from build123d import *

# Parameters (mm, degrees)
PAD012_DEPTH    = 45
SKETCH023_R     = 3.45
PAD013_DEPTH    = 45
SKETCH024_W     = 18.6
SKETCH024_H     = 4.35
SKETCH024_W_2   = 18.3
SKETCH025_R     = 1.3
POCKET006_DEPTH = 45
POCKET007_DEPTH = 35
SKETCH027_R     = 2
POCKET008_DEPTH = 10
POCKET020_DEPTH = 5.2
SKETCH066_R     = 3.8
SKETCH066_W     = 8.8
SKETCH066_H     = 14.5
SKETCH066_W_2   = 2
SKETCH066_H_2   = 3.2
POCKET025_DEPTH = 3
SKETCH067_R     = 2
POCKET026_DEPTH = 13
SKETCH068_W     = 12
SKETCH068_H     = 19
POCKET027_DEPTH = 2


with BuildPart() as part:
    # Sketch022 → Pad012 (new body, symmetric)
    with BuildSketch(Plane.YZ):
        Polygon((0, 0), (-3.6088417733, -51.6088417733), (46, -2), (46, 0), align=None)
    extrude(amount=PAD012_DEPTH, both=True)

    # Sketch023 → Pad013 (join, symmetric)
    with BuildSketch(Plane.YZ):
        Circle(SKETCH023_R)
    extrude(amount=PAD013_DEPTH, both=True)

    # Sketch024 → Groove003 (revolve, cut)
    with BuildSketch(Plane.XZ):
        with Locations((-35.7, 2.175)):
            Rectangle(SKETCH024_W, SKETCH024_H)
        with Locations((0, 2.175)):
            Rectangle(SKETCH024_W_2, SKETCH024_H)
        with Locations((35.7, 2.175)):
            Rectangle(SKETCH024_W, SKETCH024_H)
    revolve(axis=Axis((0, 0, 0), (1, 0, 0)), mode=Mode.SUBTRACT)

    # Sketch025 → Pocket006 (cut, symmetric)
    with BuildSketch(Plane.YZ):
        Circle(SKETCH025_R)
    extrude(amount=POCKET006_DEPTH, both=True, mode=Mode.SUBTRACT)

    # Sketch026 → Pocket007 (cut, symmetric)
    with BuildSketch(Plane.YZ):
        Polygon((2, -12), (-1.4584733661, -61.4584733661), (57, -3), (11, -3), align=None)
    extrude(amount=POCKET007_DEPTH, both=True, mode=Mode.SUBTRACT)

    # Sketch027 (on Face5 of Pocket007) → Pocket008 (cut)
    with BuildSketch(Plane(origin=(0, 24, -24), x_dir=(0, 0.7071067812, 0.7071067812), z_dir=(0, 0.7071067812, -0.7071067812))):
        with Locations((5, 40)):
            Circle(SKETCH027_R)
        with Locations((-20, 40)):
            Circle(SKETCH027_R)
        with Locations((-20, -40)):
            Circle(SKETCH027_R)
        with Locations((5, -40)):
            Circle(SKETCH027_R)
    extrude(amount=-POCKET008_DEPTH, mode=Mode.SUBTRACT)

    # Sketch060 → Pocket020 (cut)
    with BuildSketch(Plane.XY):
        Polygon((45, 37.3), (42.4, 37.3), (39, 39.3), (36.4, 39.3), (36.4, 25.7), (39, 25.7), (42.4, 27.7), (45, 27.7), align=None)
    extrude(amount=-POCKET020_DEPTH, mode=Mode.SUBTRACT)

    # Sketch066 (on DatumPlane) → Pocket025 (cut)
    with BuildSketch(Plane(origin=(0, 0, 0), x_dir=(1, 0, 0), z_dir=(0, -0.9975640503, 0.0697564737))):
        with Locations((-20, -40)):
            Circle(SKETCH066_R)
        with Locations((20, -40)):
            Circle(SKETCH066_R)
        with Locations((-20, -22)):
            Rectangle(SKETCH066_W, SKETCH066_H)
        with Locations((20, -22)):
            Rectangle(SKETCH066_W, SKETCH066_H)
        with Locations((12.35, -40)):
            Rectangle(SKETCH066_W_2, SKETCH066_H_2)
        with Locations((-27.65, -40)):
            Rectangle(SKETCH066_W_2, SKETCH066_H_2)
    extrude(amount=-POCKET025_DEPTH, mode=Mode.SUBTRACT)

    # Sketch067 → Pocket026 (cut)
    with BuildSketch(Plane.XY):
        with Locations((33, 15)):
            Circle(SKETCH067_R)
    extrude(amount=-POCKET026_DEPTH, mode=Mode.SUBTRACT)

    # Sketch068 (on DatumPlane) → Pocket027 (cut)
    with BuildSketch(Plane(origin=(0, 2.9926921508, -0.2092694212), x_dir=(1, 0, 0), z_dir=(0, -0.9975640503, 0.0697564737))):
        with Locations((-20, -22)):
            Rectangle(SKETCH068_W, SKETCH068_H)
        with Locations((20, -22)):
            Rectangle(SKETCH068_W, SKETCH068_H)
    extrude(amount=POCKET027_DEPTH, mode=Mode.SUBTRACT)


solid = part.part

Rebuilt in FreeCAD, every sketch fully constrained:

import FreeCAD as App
import Part
import Sketcher
from FreeCAD import Vector
Q = App.Units.Quantity

doc = App.newDocument("Part")
body = doc.addObject("PartDesign::Body", "Body")

# Sketch on YZ plane
sketch1 = body.newObject("Sketcher::SketchObject", "Sketch")
sketch1.AttachmentSupport = (doc.getObject("YZ_Plane"), [""])
sketch1.MapMode = "FlatFace"
sketch1.addGeometry([
    Part.LineSegment(Vector(0, 0, 0), Vector(-3.608842, -51.608842, 0)),
    Part.LineSegment(Vector(-3.608842, -51.608842, 0), Vector(46, -2, 0)),
    Part.LineSegment(Vector(46, -2, 0), Vector(46, 0, 0)),
    Part.LineSegment(Vector(46, 0, 0), Vector(0, 0, 0)),
], False)
sketch1.addConstraint([
    Sketcher.Constraint("Coincident", 0, 2, 1, 1),
    Sketcher.Constraint("Coincident", 1, 2, 2, 1),
    Sketcher.Constraint("Coincident", 2, 2, 3, 1),
    Sketcher.Constraint("Coincident", 3, 2, 0, 1),
    Sketcher.Constraint("Vertical", 2),
    Sketcher.Constraint("Horizontal", 3),
    Sketcher.Constraint("Coincident", 3, 2, -1, 1),
    Sketcher.Constraint("DistanceX", 3, 2, 3, 1, 46.0),
    Sketcher.Constraint("DistanceY", 2, 1, 2, 2, 2.0),
    Sketcher.Constraint("Angle", 0, Q("-94 deg")),
    Sketcher.Constraint("Angle", 1, Q("45 deg")),
])
pad1 = body.newObject("PartDesign::Pad", "Pad")
pad1.Profile = sketch1
pad1.Length = 90
pad1.Midplane = True

# Sketch on YZ plane
sketch2 = body.newObject("Sketcher::SketchObject", "Sketch001")
sketch2.AttachmentSupport = (doc.getObject("YZ_Plane"), [""])
sketch2.MapMode = "FlatFace"
sketch2.addGeometry(Part.Circle(Vector(0, 0, 0), Vector(0, 0, 1), 3.45), False)
sketch2.addConstraint([
    Sketcher.Constraint("Coincident", 0, 3, -1, 1),
    Sketcher.Constraint("Diameter", 0, 6.9),
])
pad2 = body.newObject("PartDesign::Pad", "Pad001")
pad2.Profile = sketch2
pad2.Length = 90
pad2.Midplane = True

# Sketch on XZ plane
sketch3 = body.newObject("Sketcher::SketchObject", "Sketch002")
sketch3.AttachmentSupport = (doc.getObject("XZ_Plane"), [""])
sketch3.MapMode = "FlatFace"
sketch3.addGeometry([
    Part.LineSegment(Vector(-45, 4.35, 0), Vector(-45, 0, 0)),  # 0
    Part.LineSegment(Vector(-45, 0, 0), Vector(-26.4, 0, 0)),  # 1
    Part.LineSegment(Vector(-26.4, 0, 0), Vector(-26.4, 4.35, 0)),  # 2
    Part.LineSegment(Vector(-26.4, 4.35, 0), Vector(-45, 4.35, 0)),  # 3
    Part.LineSegment(Vector(-9.15, 4.35, 0), Vector(-9.15, 0, 0)),  # 4
    Part.LineSegment(Vector(-9.15, 0, 0), Vector(9.15, 0, 0)),  # 5
    Part.LineSegment(Vector(9.15, 0, 0), Vector(9.15, 4.35, 0)),  # 6
    Part.LineSegment(Vector(9.15, 4.35, 0), Vector(-9.15, 4.35, 0)),  # 7
    Part.LineSegment(Vector(26.4, 4.35, 0), Vector(26.4, 0, 0)),  # 8
    Part.LineSegment(Vector(26.4, 0, 0), Vector(45, 0, 0)),  # 9
    Part.LineSegment(Vector(45, 0, 0), Vector(45, 4.35, 0)),  # 10
    Part.LineSegment(Vector(45, 4.35, 0), Vector(26.4, 4.35, 0)),  # 11
], False)
sketch3.addConstraint([
    Sketcher.Constraint("Coincident", 0, 2, 1, 1),
    Sketcher.Constraint("Coincident", 1, 2, 2, 1),
    Sketcher.Constraint("Coincident", 2, 2, 3, 1),
    Sketcher.Constraint("Coincident", 3, 2, 0, 1),
    Sketcher.Constraint("Coincident", 4, 2, 5, 1),
    Sketcher.Constraint("Coincident", 5, 2, 6, 1),
    Sketcher.Constraint("Coincident", 6, 2, 7, 1),
    Sketcher.Constraint("Coincident", 7, 2, 4, 1),
    Sketcher.Constraint("Coincident", 8, 2, 9, 1),
    Sketcher.Constraint("Coincident", 9, 2, 10, 1),
    Sketcher.Constraint("Coincident", 10, 2, 11, 1),
    Sketcher.Constraint("Coincident", 11, 2, 8, 1),
    Sketcher.Constraint("Vertical", 0),
    Sketcher.Constraint("Horizontal", 1),
    Sketcher.Constraint("Vertical", 2),
    Sketcher.Constraint("Horizontal", 3),
    Sketcher.Constraint("Vertical", 4),
    Sketcher.Constraint("Horizontal", 5),
    Sketcher.Constraint("Vertical", 6),
    Sketcher.Constraint("Horizontal", 7),
    Sketcher.Constraint("Vertical", 8),
    Sketcher.Constraint("Horizontal", 9),
    Sketcher.Constraint("Vertical", 10),
    Sketcher.Constraint("Horizontal", 11),
    Sketcher.Constraint("Symmetric", 4, 2, 5, 2, -1, 1),
    Sketcher.Constraint("Symmetric", 1, 2, 8, 2, -1, 1),
    Sketcher.Constraint("Symmetric", 0, 2, 9, 2, -2),
    Sketcher.Constraint("Horizontal", 3, 2, 6, 2),
    Sketcher.Constraint("Horizontal", 7, 2, 10, 2),
    Sketcher.Constraint("DistanceX", 1, 1, 1, 2, 18.6),
    Sketcher.Constraint("DistanceX", 5, 1, 5, 2, 18.3),
    Sketcher.Constraint("DistanceX", 0, 2, -1, 1, 45.0),
    Sketcher.Constraint("DistanceY", 0, 2, 0, 1, 4.35),
])
groove = body.newObject("PartDesign::Groove", "Groove")
groove.Profile = sketch3
groove.ReferenceAxis = (sketch3, ["H_Axis"])
groove.Angle = 360

# Sketch on YZ plane
sketch4 = body.newObject("Sketcher::SketchObject", "Sketch003")
sketch4.AttachmentSupport = (doc.getObject("YZ_Plane"), [""])
sketch4.MapMode = "FlatFace"
sketch4.addGeometry(Part.Circle(Vector(0, 0, 0), Vector(0, 0, 1), 1.3), False)
sketch4.addConstraint([
    Sketcher.Constraint("Coincident", 0, 3, -1, 1),
    Sketcher.Constraint("Diameter", 0, 2.6),
])
pocket1 = body.newObject("PartDesign::Pocket", "Pocket")
pocket1.Profile = sketch4
pocket1.Length = 90
pocket1.Midplane = True

# Sketch on YZ plane
sketch5 = body.newObject("Sketcher::SketchObject", "Sketch004")
sketch5.AttachmentSupport = (doc.getObject("YZ_Plane"), [""])
sketch5.MapMode = "FlatFace"
sketch5.addGeometry([
    Part.LineSegment(Vector(2, -12, 0), Vector(-1.458473, -61.458473, 0)),
    Part.LineSegment(Vector(-1.458473, -61.458473, 0), Vector(57, -3, 0)),
    Part.LineSegment(Vector(57, -3, 0), Vector(11, -3, 0)),
    Part.LineSegment(Vector(11, -3, 0), Vector(2, -12, 0)),
], False)
sketch5.addConstraint([
    Sketcher.Constraint("Coincident", 0, 2, 1, 1),
    Sketcher.Constraint("Coincident", 1, 2, 2, 1),
    Sketcher.Constraint("Coincident", 2, 2, 3, 1),
    Sketcher.Constraint("Coincident", 3, 2, 0, 1),
    Sketcher.Constraint("Horizontal", 2),
    Sketcher.Constraint("Parallel", 1, 3),
    Sketcher.Constraint("DistanceX", 2, 2, 2, 1, 46.0),
    Sketcher.Constraint("Angle", 0, Q("-94 deg")),
    Sketcher.Constraint("Angle", 1, Q("45 deg")),
    Sketcher.Constraint("DistanceX", -1, 1, 1, 2, 57.0),
    Sketcher.Constraint("DistanceY", 1, 2, -1, 1, 3.0),
    Sketcher.Constraint("DistanceX", -1, 1, 3, 2, 2.0),
])
pocket2 = body.newObject("PartDesign::Pocket", "Pocket001")
pocket2.Profile = sketch5
pocket2.Length = 70
pocket2.Midplane = True

# Sketch on an angled plane
sketch6 = body.newObject("Sketcher::SketchObject", "Sketch005")
sketch6.Placement = App.Placement(Vector(0, 24, -24), App.Rotation(Vector(0, 0.707106781, 0.707106781), Vector(0.999999999, 0, 0), Vector(0, 0.707106781, -0.707106781), "ZXY"))
sketch6.addGeometry([
    Part.Circle(Vector(5, 40, 0), Vector(0, 0, 1), 2),
    Part.Circle(Vector(-20, 40, 0), Vector(0, 0, 1), 2),
    Part.Circle(Vector(-20, -40, 0), Vector(0, 0, 1), 2),
    Part.Circle(Vector(5, -40, 0), Vector(0, 0, 1), 2),
], False)
sketch6.addConstraint([
    Sketcher.Constraint("Equal", 0, 1),
    Sketcher.Constraint("Equal", 1, 2),
    Sketcher.Constraint("Equal", 2, 3),
    Sketcher.Constraint("Symmetric", 1, 3, 2, 3, -1),
    Sketcher.Constraint("Symmetric", 0, 3, 3, 3, -1),
    Sketcher.Constraint("Horizontal", 0, 3, 1, 3),
    Sketcher.Constraint("Diameter", 0, 4.0),
    Sketcher.Constraint("DistanceX", -1, 1, 0, 3, 5.0),
    Sketcher.Constraint("DistanceY", -1, 1, 0, 3, 40.0),
    Sketcher.Constraint("DistanceX", 1, 3, -1, 1, 20.0),
])
pocket3 = body.newObject("PartDesign::Pocket", "Pocket002")
pocket3.Profile = sketch6
pocket3.Length = 10

# Sketch on XY plane
sketch7 = body.newObject("Sketcher::SketchObject", "Sketch006")
sketch7.AttachmentSupport = (doc.getObject("XY_Plane"), [""])
sketch7.MapMode = "FlatFace"
sketch7.addGeometry([
    Part.LineSegment(Vector(45, 37.3, 0), Vector(42.4, 37.3, 0)),  # 0
    Part.LineSegment(Vector(42.4, 37.3, 0), Vector(39, 39.3, 0)),  # 1
    Part.LineSegment(Vector(39, 39.3, 0), Vector(36.4, 39.3, 0)),  # 2
    Part.LineSegment(Vector(36.4, 39.3, 0), Vector(36.4, 25.7, 0)),  # 3
    Part.LineSegment(Vector(36.4, 25.7, 0), Vector(39, 25.7, 0)),  # 4
    Part.LineSegment(Vector(39, 25.7, 0), Vector(42.4, 27.7, 0)),  # 5
    Part.LineSegment(Vector(42.4, 27.7, 0), Vector(45, 27.7, 0)),  # 6
    Part.LineSegment(Vector(45, 27.7, 0), Vector(45, 37.3, 0)),  # 7
], False)
sketch7.addConstraint([
    Sketcher.Constraint("Coincident", 0, 2, 1, 1),
    Sketcher.Constraint("Coincident", 1, 2, 2, 1),
    Sketcher.Constraint("Coincident", 2, 2, 3, 1),
    Sketcher.Constraint("Coincident", 3, 2, 4, 1),
    Sketcher.Constraint("Coincident", 4, 2, 5, 1),
    Sketcher.Constraint("Coincident", 5, 2, 6, 1),
    Sketcher.Constraint("Coincident", 6, 2, 7, 1),
    Sketcher.Constraint("Coincident", 7, 2, 0, 1),
    Sketcher.Constraint("Horizontal", 0),
    Sketcher.Constraint("Horizontal", 2),
    Sketcher.Constraint("Vertical", 3),
    Sketcher.Constraint("Horizontal", 4),
    Sketcher.Constraint("Horizontal", 6),
    Sketcher.Constraint("Vertical", 7),
    Sketcher.Constraint("Vertical", 1, 2, 4, 2),
    Sketcher.Constraint("Vertical", 0, 2, 5, 2),
    Sketcher.Constraint("Equal", 0, 2),
    Sketcher.Constraint("Equal", 1, 5),
    Sketcher.Constraint("DistanceX", 0, 2, 0, 1, 2.6),
    Sketcher.Constraint("DistanceY", 3, 2, 3, 1, 13.6),
    Sketcher.Constraint("DistanceY", 7, 1, 7, 2, 9.6),
    Sketcher.Constraint("DistanceX", -1, 1, 1, 2, 39.0),
    Sketcher.Constraint("DistanceX", -1, 1, 6, 2, 45.0),
    Sketcher.Constraint("DistanceY", -1, 1, 0, 2, 37.3),
])
pocket4 = body.newObject("PartDesign::Pocket", "Pocket003")
pocket4.Profile = sketch7
pocket4.Length = 5.2

# Sketch on an angled plane
sketch8 = body.newObject("Sketcher::SketchObject", "Sketch007")
sketch8.Placement = App.Placement(Vector(0, 0, 0), App.Rotation(Vector(1, 0, 0), Vector(0, 0.069756474, 0.99756405), Vector(0, -0.99756405, 0.069756474), "ZXY"))
sketch8.addGeometry([
    Part.Circle(Vector(-20, -40, 0), Vector(0, 0, 1), 3.8),  # 0
    Part.Circle(Vector(20, -40, 0), Vector(0, 0, 1), 3.8),  # 1
    Part.LineSegment(Vector(-24.4, -14.75, 0), Vector(-24.4, -29.25, 0)),  # 2
    Part.LineSegment(Vector(-24.4, -29.25, 0), Vector(-15.6, -29.25, 0)),  # 3
    Part.LineSegment(Vector(-15.6, -29.25, 0), Vector(-15.6, -14.75, 0)),  # 4
    Part.LineSegment(Vector(-15.6, -14.75, 0), Vector(-24.4, -14.75, 0)),  # 5
    Part.LineSegment(Vector(15.6, -14.75, 0), Vector(15.6, -29.25, 0)),  # 6
    Part.LineSegment(Vector(15.6, -29.25, 0), Vector(24.4, -29.25, 0)),  # 7
    Part.LineSegment(Vector(24.4, -29.25, 0), Vector(24.4, -14.75, 0)),  # 8
    Part.LineSegment(Vector(24.4, -14.75, 0), Vector(15.6, -14.75, 0)),  # 9
    Part.LineSegment(Vector(11.35, -38.4, 0), Vector(11.35, -41.6, 0)),  # 10
    Part.LineSegment(Vector(11.35, -41.6, 0), Vector(13.35, -41.6, 0)),  # 11
    Part.LineSegment(Vector(13.35, -41.6, 0), Vector(13.35, -38.4, 0)),  # 12
    Part.LineSegment(Vector(13.35, -38.4, 0), Vector(11.35, -38.4, 0)),  # 13
    Part.LineSegment(Vector(-28.65, -38.4, 0), Vector(-28.65, -41.6, 0)),  # 14
    Part.LineSegment(Vector(-28.65, -41.6, 0), Vector(-26.65, -41.6, 0)),  # 15
    Part.LineSegment(Vector(-26.65, -41.6, 0), Vector(-26.65, -38.4, 0)),  # 16
    Part.LineSegment(Vector(-26.65, -38.4, 0), Vector(-28.65, -38.4, 0)),  # 17
], False)
sketch8.addConstraint([
    Sketcher.Constraint("Coincident", 2, 2, 3, 1),
    Sketcher.Constraint("Coincident", 3, 2, 4, 1),
    Sketcher.Constraint("Coincident", 4, 2, 5, 1),
    Sketcher.Constraint("Coincident", 5, 2, 2, 1),
    Sketcher.Constraint("Coincident", 6, 2, 7, 1),
    Sketcher.Constraint("Coincident", 7, 2, 8, 1),
    Sketcher.Constraint("Coincident", 8, 2, 9, 1),
    Sketcher.Constraint("Coincident", 9, 2, 6, 1),
    Sketcher.Constraint("Coincident", 10, 2, 11, 1),
    Sketcher.Constraint("Coincident", 11, 2, 12, 1),
    Sketcher.Constraint("Coincident", 12, 2, 13, 1),
    Sketcher.Constraint("Coincident", 13, 2, 10, 1),
    Sketcher.Constraint("Coincident", 14, 2, 15, 1),
    Sketcher.Constraint("Coincident", 15, 2, 16, 1),
    Sketcher.Constraint("Coincident", 16, 2, 17, 1),
    Sketcher.Constraint("Coincident", 17, 2, 14, 1),
    Sketcher.Constraint("Vertical", 2),
    Sketcher.Constraint("Horizontal", 3),
    Sketcher.Constraint("Vertical", 4),
    Sketcher.Constraint("Horizontal", 5),
    Sketcher.Constraint("Vertical", 6),
    Sketcher.Constraint("Horizontal", 7),
    Sketcher.Constraint("Vertical", 8),
    Sketcher.Constraint("Horizontal", 9),
    Sketcher.Constraint("Vertical", 10),
    Sketcher.Constraint("Horizontal", 11),
    Sketcher.Constraint("Vertical", 12),
    Sketcher.Constraint("Horizontal", 13),
    Sketcher.Constraint("Vertical", 14),
    Sketcher.Constraint("Horizontal", 15),
    Sketcher.Constraint("Vertical", 16),
    Sketcher.Constraint("Horizontal", 17),
    Sketcher.Constraint("Equal", 0, 1),
    Sketcher.Constraint("Symmetric", 0, 3, 1, 3, -2),
    Sketcher.Constraint("Symmetric", 3, 2, 6, 2, -2),
    Sketcher.Constraint("Symmetric", 5, 2, 8, 2, -2),
    Sketcher.Constraint("Horizontal", 11, 2, 14, 2),
    Sketcher.Constraint("Horizontal", 13, 2, 16, 2),
    Sketcher.Constraint("Equal", 13, 15),
    Sketcher.Constraint("Diameter", 0, 7.6),
    Sketcher.Constraint("DistanceX", 11, 1, 11, 2, 2.0),
    Sketcher.Constraint("DistanceX", 3, 1, 3, 2, 8.8),
    Sketcher.Constraint("DistanceY", 2, 2, 2, 1, 14.5),
    Sketcher.Constraint("DistanceY", 10, 2, 10, 1, 3.2),
    Sketcher.Constraint("DistanceX", 0, 3, -1, 1, 20.0),
    Sketcher.Constraint("DistanceY", 0, 3, -1, 1, 40.0),
    Sketcher.Constraint("DistanceX", 2, 2, 6, 2, 40.0),
    Sketcher.Constraint("DistanceY", 10, 2, -1, 1, 41.6),
    Sketcher.Constraint("DistanceY", 2, 2, -1, 1, 29.25),
    Sketcher.Constraint("DistanceX", -1, 1, 10, 2, 11.35),
    Sketcher.Constraint("DistanceX", 14, 2, -1, 1, 28.65),
])
pocket5 = body.newObject("PartDesign::Pocket", "Pocket004")
pocket5.Profile = sketch8
pocket5.Length = 3

# Sketch on XY plane
sketch9 = body.newObject("Sketcher::SketchObject", "Sketch008")
sketch9.AttachmentSupport = (doc.getObject("XY_Plane"), [""])
sketch9.MapMode = "FlatFace"
sketch9.addGeometry(Part.Circle(Vector(33, 15, 0), Vector(0, 0, 1), 2), False)
sketch9.addConstraint([
    Sketcher.Constraint("Diameter", 0, 4.0),
    Sketcher.Constraint("DistanceX", -1, 1, 0, 3, 33.0),
    Sketcher.Constraint("DistanceY", -1, 1, 0, 3, 15.0),
])
pocket6 = body.newObject("PartDesign::Pocket", "Pocket005")
pocket6.Profile = sketch9
pocket6.Length = 13

# Sketch on an angled plane
sketch10 = body.newObject("Sketcher::SketchObject", "Sketch009")
sketch10.Placement = App.Placement(Vector(0, 2.992692, -0.209269), App.Rotation(Vector(1, 0, 0), Vector(0, 0.069756474, 0.99756405), Vector(0, -0.99756405, 0.069756474), "ZXY"))
sketch10.addGeometry([
    Part.LineSegment(Vector(-26, -12.5, 0), Vector(-26, -31.5, 0)),  # 0
    Part.LineSegment(Vector(-26, -31.5, 0), Vector(-14, -31.5, 0)),  # 1
    Part.LineSegment(Vector(-14, -31.5, 0), Vector(-14, -12.5, 0)),  # 2
    Part.LineSegment(Vector(-14, -12.5, 0), Vector(-26, -12.5, 0)),  # 3
    Part.LineSegment(Vector(14, -12.5, 0), Vector(14, -31.5, 0)),  # 4
    Part.LineSegment(Vector(14, -31.5, 0), Vector(26, -31.5, 0)),  # 5
    Part.LineSegment(Vector(26, -31.5, 0), Vector(26, -12.5, 0)),  # 6
    Part.LineSegment(Vector(26, -12.5, 0), Vector(14, -12.5, 0)),  # 7
], False)
sketch10.addConstraint([
    Sketcher.Constraint("Coincident", 0, 2, 1, 1),
    Sketcher.Constraint("Coincident", 1, 2, 2, 1),
    Sketcher.Constraint("Coincident", 2, 2, 3, 1),
    Sketcher.Constraint("Coincident", 3, 2, 0, 1),
    Sketcher.Constraint("Coincident", 4, 2, 5, 1),
    Sketcher.Constraint("Coincident", 5, 2, 6, 1),
    Sketcher.Constraint("Coincident", 6, 2, 7, 1),
    Sketcher.Constraint("Coincident", 7, 2, 4, 1),
    Sketcher.Constraint("Vertical", 0),
    Sketcher.Constraint("Horizontal", 1),
    Sketcher.Constraint("Vertical", 2),
    Sketcher.Constraint("Horizontal", 3),
    Sketcher.Constraint("Vertical", 4),
    Sketcher.Constraint("Horizontal", 5),
    Sketcher.Constraint("Vertical", 6),
    Sketcher.Constraint("Horizontal", 7),
    Sketcher.Constraint("Symmetric", 1, 2, 4, 2, -2),
    Sketcher.Constraint("Symmetric", 3, 2, 6, 2, -2),
    Sketcher.Constraint("DistanceX", 1, 1, 1, 2, 12.0),
    Sketcher.Constraint("DistanceY", 0, 2, 0, 1, 19.0),
    Sketcher.Constraint("DistanceX", 0, 2, -1, 1, 26.0),
    Sketcher.Constraint("DistanceY", 0, 2, -1, 1, 31.5),
])
pocket7 = body.newObject("PartDesign::Pocket", "Pocket006")
pocket7.Profile = sketch10
pocket7.Length = 2
pocket7.Reversed = True

doc.recompute()
